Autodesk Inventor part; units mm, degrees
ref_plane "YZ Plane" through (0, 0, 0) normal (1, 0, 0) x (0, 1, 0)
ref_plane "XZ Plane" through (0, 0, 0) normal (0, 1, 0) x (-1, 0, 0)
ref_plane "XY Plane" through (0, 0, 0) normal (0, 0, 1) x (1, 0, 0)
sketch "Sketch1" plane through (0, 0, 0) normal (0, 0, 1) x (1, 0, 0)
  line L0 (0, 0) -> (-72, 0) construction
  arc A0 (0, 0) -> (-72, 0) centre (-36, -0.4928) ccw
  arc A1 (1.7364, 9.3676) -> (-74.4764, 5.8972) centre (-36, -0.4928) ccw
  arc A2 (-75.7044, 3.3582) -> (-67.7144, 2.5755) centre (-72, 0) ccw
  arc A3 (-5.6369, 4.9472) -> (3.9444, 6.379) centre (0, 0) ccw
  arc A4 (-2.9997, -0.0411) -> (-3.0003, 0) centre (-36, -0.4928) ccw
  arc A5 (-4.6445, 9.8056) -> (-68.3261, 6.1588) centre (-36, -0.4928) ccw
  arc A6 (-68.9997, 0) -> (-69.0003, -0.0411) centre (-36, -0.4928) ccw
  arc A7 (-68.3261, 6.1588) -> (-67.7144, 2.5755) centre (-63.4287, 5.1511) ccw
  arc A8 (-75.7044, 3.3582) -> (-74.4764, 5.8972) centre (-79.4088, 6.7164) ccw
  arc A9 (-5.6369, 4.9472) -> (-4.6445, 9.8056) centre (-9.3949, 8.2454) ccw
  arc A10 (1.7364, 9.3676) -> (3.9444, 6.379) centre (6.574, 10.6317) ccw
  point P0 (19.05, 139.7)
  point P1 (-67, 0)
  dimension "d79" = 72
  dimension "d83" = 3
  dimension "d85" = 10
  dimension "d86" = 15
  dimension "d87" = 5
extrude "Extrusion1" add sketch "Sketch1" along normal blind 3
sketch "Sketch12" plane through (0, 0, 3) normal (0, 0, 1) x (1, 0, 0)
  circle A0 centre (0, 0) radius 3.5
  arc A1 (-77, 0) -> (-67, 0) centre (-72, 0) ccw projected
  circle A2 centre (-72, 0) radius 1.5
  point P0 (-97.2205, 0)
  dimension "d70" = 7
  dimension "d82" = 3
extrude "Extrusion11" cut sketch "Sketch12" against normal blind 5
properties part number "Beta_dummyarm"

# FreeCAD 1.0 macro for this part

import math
import FreeCAD as App
import Part
import Sketcher
from FreeCAD import Vector

doc = App.newDocument("Part")
params = doc.addObject("Spreadsheet::Sheet", "Params")
for row, (alias, value) in enumerate([
    ("sketch1_radius", "5 mm"),
    ("sketch1_radius2", "7.5 mm"),
    ("pad1_length", "3 mm"),
    ("sketch2_diameter", "7 mm"),
    ("sketch2_diameter2", "3 mm"),
    ("pocket1_length", "5 mm"),
], start=1):
    params.set(f"A{row}", alias)
    params.set(f"B{row}", "=" + value)
    params.setAlias(f"B{row}", alias)

body = doc.addObject("PartDesign::Body", "Body")

sketch1 = doc.addObject("Sketcher::SketchObject", "Sketch")
body.addObject(sketch1)
sketch1.AttachmentSupport = (doc.XY_Plane, [""])
sketch1.MapMode = "FlatFace"
sketch1.addGeometry([
    Part.ArcOfCircle(Part.Circle(Vector(6.6, 10.6, 0), Vector(0, 0, 1), 5), math.radians(-165), math.radians(-122)),
    Part.ArcOfCircle(Part.Circle(Vector(-36, -0.5, 0), Vector(0, 0, 1), 39), math.radians(15), math.radians(171)),
    Part.ArcOfCircle(Part.Circle(Vector(-79.4, 6.7, 0), Vector(0, 0, 1), 5), math.radians(-42), math.radians(-9)),
    Part.ArcOfCircle(Part.Circle(Vector(-72, 0, 0), Vector(0, 0, 1), 5), math.radians(138), math.radians(391)),
    Part.ArcOfCircle(Part.Circle(Vector(-63.4, 5.2, 0), Vector(0, 0, 1), 5), math.radians(168), math.radians(211)),
    Part.ArcOfCircle(Part.Circle(Vector(-36, -0.5, 0), Vector(0, 0, 1), 33), math.radians(18), math.radians(168)),
    Part.ArcOfCircle(Part.Circle(Vector(-9.4, 8.2, 0), Vector(0, 0, 1), 5), math.radians(-41), math.radians(18)),
    Part.ArcOfCircle(Part.Circle(Vector(0, 0, 0), Vector(0, 0, 1), 7.5), math.radians(139), math.radians(418)),
], False)
sketch1.addConstraint([
    Sketcher.Constraint("Tangent", 0, 1, 1, 1),
    Sketcher.Constraint("Tangent", 1, 2, 2, 2),
    Sketcher.Constraint("Tangent", 2, 1, 3, 1),
    Sketcher.Constraint("Tangent", 3, 2, 4, 2),
    Sketcher.Constraint("Tangent", 4, 1, 5, 2),
    Sketcher.Constraint("Tangent", 5, 1, 6, 2),
    Sketcher.Constraint("Tangent", 6, 1, 7, 1),
    Sketcher.Constraint("Tangent", 7, 2, 0, 2),
    Sketcher.Constraint("Coincident", 7, 3, -1, 1),
    Sketcher.Constraint("Coincident", 5, 3, 1, 3),
    Sketcher.Constraint("Equal", 0, 2),
    Sketcher.Constraint("Equal", 2, 3),
    Sketcher.Constraint("Equal", 3, 4),
    Sketcher.Constraint("Equal", 4, 6),
    Sketcher.Constraint("PointOnObject", 3, 3, -1),
    Sketcher.Constraint("Radius", 0, 5.0),
    Sketcher.Constraint("Radius", 7, 7.5),
    Sketcher.Constraint("DistanceX", 3, 3, -1, 1, 72.0),
    Sketcher.Constraint("DistanceX", 1, 3, -1, 1, 36.0),
    Sketcher.Constraint("Radius", 1, 39.0034),
    Sketcher.Constraint("Radius", 5, 33.0034),
    Sketcher.Constraint("DistanceX", 2, 3, 4, 3, 15.98),
])
sketch1.setExpression("Constraints[15]", "Params.sketch1_radius")
sketch1.setExpression("Constraints[16]", "Params.sketch1_radius2")
pad1 = doc.addObject("PartDesign::Pad", "Pad")
body.addObject(pad1)
pad1.Profile = sketch1
pad1.setExpression("Length", "Params.pad1_length")

sketch2 = doc.addObject("Sketcher::SketchObject", "Sketch001")
body.addObject(sketch2)
sketch2.AttachmentSupport = (doc.XY_Plane, [""])
sketch2.MapMode = "FlatFace"
sketch2.AttachmentOffset = App.Placement(Vector(0, 0, 3), App.Rotation())
sketch2.addGeometry([
    Part.Circle(Vector(0, 0, 0), Vector(0, 0, 1), 3.5),
    Part.Circle(Vector(-72, 0, 0), Vector(0, 0, 1), 1.5),
], False)
sketch2.addConstraint([
    Sketcher.Constraint("Coincident", 0, 3, -1, 1),
    Sketcher.Constraint("PointOnObject", 1, 3, -1),
    Sketcher.Constraint("Diameter", 0, 7.0),
    Sketcher.Constraint("Diameter", 1, 3.0),
    Sketcher.Constraint("DistanceX", 1, 3, -1, 1, 72.0),
])
sketch2.setExpression("Constraints[2]", "Params.sketch2_diameter")
sketch2.setExpression("Constraints[3]", "Params.sketch2_diameter2")
pocket1 = doc.addObject("PartDesign::Pocket", "Pocket")
body.addObject(pocket1)
pocket1.Profile = sketch2
pocket1.setExpression("Length", "Params.pocket1_length")

doc.recompute()
